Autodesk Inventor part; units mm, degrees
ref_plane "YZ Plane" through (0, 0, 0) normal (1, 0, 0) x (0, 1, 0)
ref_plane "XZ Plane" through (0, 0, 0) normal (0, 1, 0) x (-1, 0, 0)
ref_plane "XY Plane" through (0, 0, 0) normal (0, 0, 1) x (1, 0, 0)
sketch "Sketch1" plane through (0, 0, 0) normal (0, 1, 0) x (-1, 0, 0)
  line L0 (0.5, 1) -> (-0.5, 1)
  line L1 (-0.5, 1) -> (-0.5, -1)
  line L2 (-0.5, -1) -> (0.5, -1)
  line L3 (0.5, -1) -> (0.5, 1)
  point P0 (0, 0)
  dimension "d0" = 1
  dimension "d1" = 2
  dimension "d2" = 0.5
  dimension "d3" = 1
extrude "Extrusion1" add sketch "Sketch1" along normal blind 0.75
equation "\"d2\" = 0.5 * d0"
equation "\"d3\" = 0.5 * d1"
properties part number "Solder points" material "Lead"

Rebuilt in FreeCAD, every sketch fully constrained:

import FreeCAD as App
import Part
import Sketcher

doc = App.newDocument("Part")
body = doc.addObject("PartDesign::Body", "Body")

# Sketch on XZ plane
sketch1 = doc.addObject("Sketcher::SketchObject", "Sketch")
body.addObject(sketch1)
sketch1.AttachmentSupport = (doc.XZ_Plane, [""])
sketch1.MapMode = "FlatFace"
sketch1.addGeometry([
    Part.LineSegment(App.Vector(-0.5, -1, 0), App.Vector(-0.5, 1, 0)),
    Part.LineSegment(App.Vector(-0.5, 1, 0), App.Vector(0.5, 1, 0)),
    Part.LineSegment(App.Vector(0.5, 1, 0), App.Vector(0.5, -1, 0)),
    Part.LineSegment(App.Vector(0.5, -1, 0), App.Vector(-0.5, -1, 0)),
], False)
sketch1.addConstraint([
    Sketcher.Constraint("Coincident", 0, 2, 1, 1),
    Sketcher.Constraint("Coincident", 1, 2, 2, 1),
    Sketcher.Constraint("Coincident", 2, 2, 3, 1),
    Sketcher.Constraint("Coincident", 3, 2, 0, 1),
    Sketcher.Constraint("Vertical", 0),
    Sketcher.Constraint("Horizontal", 1),
    Sketcher.Constraint("Vertical", 2),
    Sketcher.Constraint("Horizontal", 3),
    Sketcher.Constraint("Symmetric", 0, 2, 2, 2, -1, 1),
    Sketcher.Constraint("DistanceX", 1, 1, 1, 2, 1.0),
    Sketcher.Constraint("DistanceY", 0, 1, 0, 2, 2.0),
])
pad1 = doc.addObject("PartDesign::Pad", "Pad")
body.addObject(pad1)
pad1.Profile = sketch1
pad1.Length = 0.75
pad1.Reversed = True

doc.recompute()
